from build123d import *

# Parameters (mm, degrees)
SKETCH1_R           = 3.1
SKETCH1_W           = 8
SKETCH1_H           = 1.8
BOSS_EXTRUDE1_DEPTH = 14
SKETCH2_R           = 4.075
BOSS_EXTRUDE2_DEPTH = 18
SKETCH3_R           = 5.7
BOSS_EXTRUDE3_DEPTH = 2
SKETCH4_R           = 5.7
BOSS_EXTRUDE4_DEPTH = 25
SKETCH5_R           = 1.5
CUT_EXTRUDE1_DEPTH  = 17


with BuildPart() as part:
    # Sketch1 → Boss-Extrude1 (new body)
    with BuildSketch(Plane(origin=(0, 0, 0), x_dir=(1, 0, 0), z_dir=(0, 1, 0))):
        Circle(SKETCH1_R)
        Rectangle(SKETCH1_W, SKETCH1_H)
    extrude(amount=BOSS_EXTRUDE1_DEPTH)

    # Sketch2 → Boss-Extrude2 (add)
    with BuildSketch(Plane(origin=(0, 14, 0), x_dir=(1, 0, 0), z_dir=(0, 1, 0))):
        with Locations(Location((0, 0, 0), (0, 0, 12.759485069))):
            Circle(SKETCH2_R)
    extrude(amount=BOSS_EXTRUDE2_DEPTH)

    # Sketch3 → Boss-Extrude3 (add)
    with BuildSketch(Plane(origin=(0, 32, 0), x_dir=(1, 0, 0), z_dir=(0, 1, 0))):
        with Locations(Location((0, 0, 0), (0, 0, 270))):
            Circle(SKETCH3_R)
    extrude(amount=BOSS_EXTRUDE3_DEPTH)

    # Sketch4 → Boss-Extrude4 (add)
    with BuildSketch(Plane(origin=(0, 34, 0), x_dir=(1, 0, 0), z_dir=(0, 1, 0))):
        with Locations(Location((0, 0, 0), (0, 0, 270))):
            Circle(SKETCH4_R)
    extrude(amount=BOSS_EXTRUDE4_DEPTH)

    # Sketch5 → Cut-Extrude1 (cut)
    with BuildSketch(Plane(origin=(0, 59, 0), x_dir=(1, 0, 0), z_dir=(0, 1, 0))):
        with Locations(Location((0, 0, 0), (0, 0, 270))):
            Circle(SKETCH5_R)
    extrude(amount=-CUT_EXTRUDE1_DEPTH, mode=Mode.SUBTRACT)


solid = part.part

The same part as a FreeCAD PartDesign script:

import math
import FreeCAD as App
import Part
import Sketcher

V = App.Vector

doc = App.newDocument("Part")
body = doc.addObject("PartDesign::Body", "Body")

# Sketch on XZ plane
sketch1 = doc.addObject("Sketcher::SketchObject", "Sketch")
body.addObject(sketch1)
sketch1.AttachmentSupport = (doc.XZ_Plane, [""])
sketch1.MapMode = "FlatFace"
sketch1.addGeometry(Part.LineSegment(V(3, 0.9, 0), V(4, 0.9, 0)), False)
sketch1.addGeometry(Part.LineSegment(V(4, 0.9, 0), V(4, -0.9, 0)), False)
sketch1.addGeometry(Part.LineSegment(V(4, -0.9, 0), V(3, -0.9, 0)), False)
sketch1.addGeometry(Part.ArcOfCircle(Part.Circle(V(0, 0, 0), V(0, 0, 1), 3.1), math.radians(-163), math.radians(-17)), False)
sketch1.addGeometry(Part.LineSegment(V(-3, -0.9, 0), V(-4, -0.9, 0)), False)
sketch1.addGeometry(Part.LineSegment(V(-4, -0.9, 0), V(-4, 0.9, 0)), False)
sketch1.addGeometry(Part.LineSegment(V(-4, 0.9, 0), V(-3, 0.9, 0)), False)
sketch1.addGeometry(Part.ArcOfCircle(Part.Circle(V(0, 0, 0), V(0, 0, 1), 3.1), math.radians(17), math.radians(163)), False)
sketch1.addConstraint(Sketcher.Constraint("Coincident", 0, 2, 1, 1))
sketch1.addConstraint(Sketcher.Constraint("Coincident", 1, 2, 2, 1))
sketch1.addConstraint(Sketcher.Constraint("Coincident", 2, 2, 3, 2))
sketch1.addConstraint(Sketcher.Constraint("Coincident", 3, 1, 4, 1))
sketch1.addConstraint(Sketcher.Constraint("Coincident", 4, 2, 5, 1))
sketch1.addConstraint(Sketcher.Constraint("Coincident", 5, 2, 6, 1))
sketch1.addConstraint(Sketcher.Constraint("Coincident", 6, 2, 7, 2))
sketch1.addConstraint(Sketcher.Constraint("Coincident", 7, 1, 0, 1))
sketch1.addConstraint(Sketcher.Constraint("Horizontal", 0))
sketch1.addConstraint(Sketcher.Constraint("Vertical", 1))
sketch1.addConstraint(Sketcher.Constraint("Horizontal", 2))
sketch1.addConstraint(Sketcher.Constraint("Horizontal", 4))
sketch1.addConstraint(Sketcher.Constraint("Vertical", 5))
sketch1.addConstraint(Sketcher.Constraint("Horizontal", 6))
sketch1.addConstraint(Sketcher.Constraint("Coincident", 3, 3, -1, 1))
sketch1.addConstraint(Sketcher.Constraint("Coincident", 7, 3, -1, 1))
sketch1.addConstraint(Sketcher.Constraint("Equal", 3, 7))
sketch1.addConstraint(Sketcher.Constraint("Symmetric", 0, 2, 4, 2, -1, 1))
sketch1.addConstraint(Sketcher.Constraint("Horizontal", 2, 2, 3, 1))
sketch1.addConstraint(Sketcher.Constraint("Horizontal", 0, 2, 5, 2))
sketch1.addConstraint(Sketcher.Constraint("Radius", 3, 3.1))
sketch1.addConstraint(Sketcher.Constraint("DistanceY", 1, 2, 1, 1, 1.8))
sketch1.addConstraint(Sketcher.Constraint("DistanceX", -1, 1, 0, 2, 4.0))
pad1 = doc.addObject("PartDesign::Pad", "Pad")
body.addObject(pad1)
pad1.Profile = sketch1
pad1.Length = 14
pad1.Reversed = True

# Sketch on XZ plane
sketch2 = doc.addObject("Sketcher::SketchObject", "Sketch001")
body.addObject(sketch2)
sketch2.AttachmentSupport = (doc.XZ_Plane, [""])
sketch2.MapMode = "FlatFace"
sketch2.AttachmentOffset = App.Placement(V(0, 0, -14), App.Rotation())
sketch2.addGeometry(Part.Circle(V(0, 0, 0), V(0, 0, 1), 4.1), False)
sketch2.addConstraint(Sketcher.Constraint("Coincident", 0, 3, -1, 1))
sketch2.addConstraint(Sketcher.Constraint("Diameter", 0, 8.15))
pad2 = doc.addObject("PartDesign::Pad", "Pad001")
body.addObject(pad2)
pad2.Profile = sketch2
pad2.Length = 18
pad2.Reversed = True

# Sketch on XZ plane
sketch3 = doc.addObject("Sketcher::SketchObject", "Sketch002")
body.addObject(sketch3)
sketch3.AttachmentSupport = (doc.XZ_Plane, [""])
sketch3.MapMode = "FlatFace"
sketch3.AttachmentOffset = App.Placement(V(0, 0, -32), App.Rotation())
sketch3.addGeometry(Part.Circle(V(0, 0, 0), V(0, 0, 1), 6), False)
sketch3.addConstraint(Sketcher.Constraint("Coincident", 0, 3, -1, 1))
sketch3.addConstraint(Sketcher.Constraint("Diameter", 0, 11.4))
pad3 = doc.addObject("PartDesign::Pad", "Pad002")
body.addObject(pad3)
pad3.Profile = sketch3
pad3.Length = 2
pad3.Reversed = True

# Sketch on XZ plane
sketch4 = doc.addObject("Sketcher::SketchObject", "Sketch003")
body.addObject(sketch4)
sketch4.AttachmentSupport = (doc.XZ_Plane, [""])
sketch4.MapMode = "FlatFace"
sketch4.AttachmentOffset = App.Placement(V(0, 0, -34), App.Rotation())
sketch4.addGeometry(Part.Circle(V(0, 0, 0), V(0, 0, 1), 6), False)
sketch4.addConstraint(Sketcher.Constraint("Coincident", 0, 3, -1, 1))
sketch4.addConstraint(Sketcher.Constraint("Diameter", 0, 11.4))
pad4 = doc.addObject("PartDesign::Pad", "Pad003")
body.addObject(pad4)
pad4.Profile = sketch4
pad4.Length = 25
pad4.Reversed = True

# Sketch on XZ plane
sketch5 = doc.addObject("Sketcher::SketchObject", "Sketch004")
body.addObject(sketch5)
sketch5.AttachmentSupport = (doc.XZ_Plane, [""])
sketch5.MapMode = "FlatFace"
sketch5.AttachmentOffset = App.Placement(V(0, 0, -59), App.Rotation())
sketch5.addGeometry(Part.Circle(V(0, 0, 0), V(0, 0, 1), 1.5), False)
sketch5.addConstraint(Sketcher.Constraint("Coincident", 0, 3, -1, 1))
sketch5.addConstraint(Sketcher.Constraint("Diameter", 0, 3.0))
pocket1 = doc.addObject("PartDesign::Pocket", "Pocket")
body.addObject(pocket1)
pocket1.Profile = sketch5
pocket1.Length = 17
pocket1.Reversed = True

doc.recompute()
